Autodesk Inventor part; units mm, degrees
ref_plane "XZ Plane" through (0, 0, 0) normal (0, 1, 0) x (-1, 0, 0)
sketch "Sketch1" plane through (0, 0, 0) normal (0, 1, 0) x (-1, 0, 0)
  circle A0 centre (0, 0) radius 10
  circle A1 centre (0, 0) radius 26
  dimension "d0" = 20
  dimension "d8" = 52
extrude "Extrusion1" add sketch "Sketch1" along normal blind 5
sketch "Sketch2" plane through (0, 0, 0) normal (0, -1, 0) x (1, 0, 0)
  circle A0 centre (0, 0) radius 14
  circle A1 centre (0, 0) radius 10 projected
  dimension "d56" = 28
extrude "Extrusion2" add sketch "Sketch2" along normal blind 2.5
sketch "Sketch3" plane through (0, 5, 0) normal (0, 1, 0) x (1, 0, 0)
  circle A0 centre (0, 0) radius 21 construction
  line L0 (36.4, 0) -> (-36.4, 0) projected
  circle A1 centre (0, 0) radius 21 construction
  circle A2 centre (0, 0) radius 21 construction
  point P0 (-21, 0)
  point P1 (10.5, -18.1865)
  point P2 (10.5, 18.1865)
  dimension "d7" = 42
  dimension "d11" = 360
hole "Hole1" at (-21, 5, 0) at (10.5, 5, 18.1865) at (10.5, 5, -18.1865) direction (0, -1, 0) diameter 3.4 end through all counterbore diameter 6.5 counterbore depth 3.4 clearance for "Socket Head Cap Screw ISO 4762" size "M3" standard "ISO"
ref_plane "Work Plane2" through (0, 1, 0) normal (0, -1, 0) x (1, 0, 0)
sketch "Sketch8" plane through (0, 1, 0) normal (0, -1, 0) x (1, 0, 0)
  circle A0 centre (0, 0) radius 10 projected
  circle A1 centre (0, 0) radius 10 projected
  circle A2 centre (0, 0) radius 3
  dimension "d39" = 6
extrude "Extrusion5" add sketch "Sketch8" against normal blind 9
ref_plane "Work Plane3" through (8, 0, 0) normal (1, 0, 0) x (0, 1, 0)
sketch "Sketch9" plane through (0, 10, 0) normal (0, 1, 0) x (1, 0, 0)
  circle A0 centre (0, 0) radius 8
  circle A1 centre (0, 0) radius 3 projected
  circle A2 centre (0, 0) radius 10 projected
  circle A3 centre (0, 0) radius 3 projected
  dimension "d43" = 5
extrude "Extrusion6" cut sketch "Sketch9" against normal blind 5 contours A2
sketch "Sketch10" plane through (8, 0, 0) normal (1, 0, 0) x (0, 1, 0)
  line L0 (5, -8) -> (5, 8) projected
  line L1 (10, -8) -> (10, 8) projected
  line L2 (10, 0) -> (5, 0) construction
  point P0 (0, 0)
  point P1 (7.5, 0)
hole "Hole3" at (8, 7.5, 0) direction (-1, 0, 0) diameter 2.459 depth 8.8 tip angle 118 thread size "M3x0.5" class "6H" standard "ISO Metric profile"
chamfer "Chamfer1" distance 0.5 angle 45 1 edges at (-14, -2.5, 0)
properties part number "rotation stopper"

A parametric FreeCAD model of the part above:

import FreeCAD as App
import Part
import Sketcher

V = App.Vector


def edges_at(feature, points):
    """Names of the edges that pass closest to the given points."""
    edges = feature.Shape.Edges
    near = lambda p: min(range(len(edges)), key=lambda i: edges[i].distToShape(Part.Vertex(*p))[0])
    return sorted({f"Edge{near(p) + 1}" for p in points})

doc = App.newDocument("Part")
params = doc.addObject("Spreadsheet::Sheet", "Params")
for row, (alias, value) in enumerate([
    ("sketch1_diameter", "52 mm"),
    ("sketch1_diameter2", "20 mm"),
    ("pad1_length", "5 mm"),
    ("sketch2_diameter", "28 mm"),
    ("sketch2_diameter2", "20 mm"),
    ("pad2_length", "2.5 mm"),
    ("sketch3_diameter", "3.4 mm"),
    ("hole_diameter", "3.4 mm"),
    ("hole_cbore_diameter", "6.5 mm"),
    ("hole_cbore_depth", "3.4 mm"),
    ("sketch4_diameter", "6 mm"),
    ("sketch4_diameter2", "20 mm"),
    ("pad3_length", "9 mm"),
    ("sketch5_diameter", "20 mm"),
    ("sketch5_diameter2", "16 mm"),
    ("pocket1_length", "5 mm"),
    ("hole2_diameter", "2.459 mm"),
    ("hole2_depth", "8.8 mm"),
    ("chamfer_size", "0.5 mm"),
], start=1):
    params.set(f"A{row}", alias)
    params.set(f"B{row}", "=" + value)
    params.setAlias(f"B{row}", alias)

body = doc.addObject("PartDesign::Body", "Body")

# Sketch on XZ plane
sketch1 = doc.addObject("Sketcher::SketchObject", "Sketch")
body.addObject(sketch1)
sketch1.AttachmentSupport = (doc.XZ_Plane, [""])
sketch1.MapMode = "FlatFace"
sketch1.addGeometry([
    Part.Circle(V(0, 0, 0), V(0, 0, 1), 26),
    Part.Circle(V(0, 0, 0), V(0, 0, 1), 10),
], False)
sketch1.addConstraint([
    Sketcher.Constraint("Coincident", 0, 3, -1, 1),
    Sketcher.Constraint("Coincident", 1, 3, -1, 1),
    Sketcher.Constraint("Diameter", 0, 52.0),
    Sketcher.Constraint("Diameter", 1, 20.0),
])
sketch1.setExpression("Constraints[2]", "Params.sketch1_diameter")
sketch1.setExpression("Constraints[3]", "Params.sketch1_diameter2")
pad1 = doc.addObject("PartDesign::Pad", "Pad")
body.addObject(pad1)
pad1.Profile = sketch1
pad1.setExpression("Length", "Params.pad1_length")
pad1.Reversed = True

# Sketch on XZ plane
sketch2 = doc.addObject("Sketcher::SketchObject", "Sketch001")
body.addObject(sketch2)
sketch2.AttachmentSupport = (doc.XZ_Plane, [""])
sketch2.MapMode = "FlatFace"
sketch2.addGeometry([
    Part.Circle(V(0, 0, 0), V(0, 0, 1), 14),
    Part.Circle(V(0, 0, 0), V(0, 0, 1), 10),
], False)
sketch2.addConstraint([
    Sketcher.Constraint("Coincident", 0, 3, -1, 1),
    Sketcher.Constraint("Coincident", 1, 3, -1, 1),
    Sketcher.Constraint("Diameter", 0, 28.0),
    Sketcher.Constraint("Diameter", 1, 20.0),
])
sketch2.setExpression("Constraints[2]", "Params.sketch2_diameter")
sketch2.setExpression("Constraints[3]", "Params.sketch2_diameter2")
pad2 = doc.addObject("PartDesign::Pad", "Pad001")
body.addObject(pad2)
pad2.Profile = sketch2
pad2.setExpression("Length", "Params.pad2_length")

# Sketch on XZ plane
sketch3 = doc.addObject("Sketcher::SketchObject", "Sketch002")
body.addObject(sketch3)
sketch3.AttachmentSupport = (doc.XZ_Plane, [""])
sketch3.MapMode = "FlatFace"
sketch3.AttachmentOffset = App.Placement(V(0, 0, -5), App.Rotation())
sketch3.addGeometry([
    Part.Circle(V(-21, 0, 0), V(0, 0, 1), 1.7),
    Part.Circle(V(10.5, 18.1865, 0), V(0, 0, 1), 1.7),
    Part.Circle(V(10.5, -18.1865, 0), V(0, 0, 1), 1.7),
], False)
sketch3.addConstraint([
    Sketcher.Constraint("Equal", 0, 1),
    Sketcher.Constraint("Equal", 1, 2),
    Sketcher.Constraint("Symmetric", 1, 3, 2, 3, -1),
    Sketcher.Constraint("PointOnObject", 0, 3, -1),
    Sketcher.Constraint("Diameter", 0, 3.4),
    Sketcher.Constraint("DistanceX", 0, 3, -1, 1, 21.0),
    Sketcher.Constraint("DistanceX", -1, 1, 1, 3, 10.5),
    Sketcher.Constraint("DistanceY", 2, 3, 1, 3, 36.373),
])
sketch3.setExpression("Constraints[4]", "Params.sketch3_diameter")
doc.recompute()
hole = doc.addObject("PartDesign::Hole", "Hole")
body.addObject(hole)
hole.Profile = sketch3
hole.ThreadType = "None"
hole.setExpression("Diameter", "Params.hole_diameter")
hole.DepthType = "ThroughAll"
hole.HoleCutType = "Counterbore"
hole.setExpression("HoleCutDiameter", "Params.hole_cbore_diameter")
hole.setExpression("HoleCutDepth", "Params.hole_cbore_depth")
hole.Reversed = True

# Sketch on XZ plane
sketch4 = doc.addObject("Sketcher::SketchObject", "Sketch003")
body.addObject(sketch4)
sketch4.AttachmentSupport = (doc.XZ_Plane, [""])
sketch4.MapMode = "FlatFace"
sketch4.AttachmentOffset = App.Placement(V(0, 0, -1), App.Rotation())
sketch4.addGeometry([
    Part.Circle(V(0, 0, 0), V(0, 0, 1), 10),
    Part.Circle(V(0, 0, 0), V(0, 0, 1), 3),
], False)
sketch4.addConstraint([
    Sketcher.Constraint("Coincident", 0, 3, -1, 1),
    Sketcher.Constraint("Coincident", 1, 3, -1, 1),
    Sketcher.Constraint("Diameter", 1, 6.0),
    Sketcher.Constraint("Diameter", 0, 20.0),
])
sketch4.setExpression("Constraints[2]", "Params.sketch4_diameter")
sketch4.setExpression("Constraints[3]", "Params.sketch4_diameter2")
pad3 = doc.addObject("PartDesign::Pad", "Pad002")
body.addObject(pad3)
pad3.Profile = sketch4
pad3.setExpression("Length", "Params.pad3_length")
pad3.Reversed = True

# Sketch on XZ plane
sketch5 = doc.addObject("Sketcher::SketchObject", "Sketch004")
body.addObject(sketch5)
sketch5.AttachmentSupport = (doc.XZ_Plane, [""])
sketch5.MapMode = "FlatFace"
sketch5.AttachmentOffset = App.Placement(V(0, 0, -10), App.Rotation())
sketch5.addGeometry([
    Part.Circle(V(0, 0, 0), V(0, 0, 1), 10),
    Part.Circle(V(0, 0, 0), V(0, 0, 1), 8),
], False)
sketch5.addConstraint([
    Sketcher.Constraint("Coincident", 0, 3, -1, 1),
    Sketcher.Constraint("Coincident", 1, 3, -1, 1),
    Sketcher.Constraint("Diameter", 0, 20.0),
    Sketcher.Constraint("Diameter", 1, 16.0),
])
sketch5.setExpression("Constraints[2]", "Params.sketch5_diameter")
sketch5.setExpression("Constraints[3]", "Params.sketch5_diameter2")
pocket1 = doc.addObject("PartDesign::Pocket", "Pocket")
body.addObject(pocket1)
pocket1.Profile = sketch5
pocket1.setExpression("Length", "Params.pocket1_length")
pocket1.Reversed = True

# Sketch on YZ plane
sketch6 = doc.addObject("Sketcher::SketchObject", "Sketch005")
body.addObject(sketch6)
sketch6.AttachmentSupport = (doc.YZ_Plane, [""])
sketch6.MapMode = "FlatFace"
sketch6.AttachmentOffset = App.Placement(V(0, 0, 8), App.Rotation())
sketch6.addGeometry(Part.Circle(V(7.5, 0, 0), V(0, 0, 1), 1.2295), False)
sketch6.addConstraint([
    Sketcher.Constraint("PointOnObject", 0, 3, -1),
    Sketcher.Constraint("Diameter", 0, 2.459),
    Sketcher.Constraint("DistanceX", -1, 1, 0, 3, 7.5),
])
doc.recompute()
hole2 = doc.addObject("PartDesign::Hole", "Hole001")
body.addObject(hole2)
hole2.Profile = sketch6
hole2.ThreadType = "None"
hole2.setExpression("Diameter", "Params.hole2_diameter")
hole2.DepthType = "Dimension"
hole2.setExpression("Depth", "Params.hole2_depth")
hole2.DrillPoint = "Angled"
hole2.DrillPointAngle = 118
doc.recompute()

chamfer = doc.addObject("PartDesign::Chamfer", "Chamfer")
body.addObject(chamfer)
chamfer.Base = (hole2, edges_at(hole2, [(-14, -2.5, 0)]))
chamfer.setExpression("Size", "Params.chamfer_size")

doc.recompute()
